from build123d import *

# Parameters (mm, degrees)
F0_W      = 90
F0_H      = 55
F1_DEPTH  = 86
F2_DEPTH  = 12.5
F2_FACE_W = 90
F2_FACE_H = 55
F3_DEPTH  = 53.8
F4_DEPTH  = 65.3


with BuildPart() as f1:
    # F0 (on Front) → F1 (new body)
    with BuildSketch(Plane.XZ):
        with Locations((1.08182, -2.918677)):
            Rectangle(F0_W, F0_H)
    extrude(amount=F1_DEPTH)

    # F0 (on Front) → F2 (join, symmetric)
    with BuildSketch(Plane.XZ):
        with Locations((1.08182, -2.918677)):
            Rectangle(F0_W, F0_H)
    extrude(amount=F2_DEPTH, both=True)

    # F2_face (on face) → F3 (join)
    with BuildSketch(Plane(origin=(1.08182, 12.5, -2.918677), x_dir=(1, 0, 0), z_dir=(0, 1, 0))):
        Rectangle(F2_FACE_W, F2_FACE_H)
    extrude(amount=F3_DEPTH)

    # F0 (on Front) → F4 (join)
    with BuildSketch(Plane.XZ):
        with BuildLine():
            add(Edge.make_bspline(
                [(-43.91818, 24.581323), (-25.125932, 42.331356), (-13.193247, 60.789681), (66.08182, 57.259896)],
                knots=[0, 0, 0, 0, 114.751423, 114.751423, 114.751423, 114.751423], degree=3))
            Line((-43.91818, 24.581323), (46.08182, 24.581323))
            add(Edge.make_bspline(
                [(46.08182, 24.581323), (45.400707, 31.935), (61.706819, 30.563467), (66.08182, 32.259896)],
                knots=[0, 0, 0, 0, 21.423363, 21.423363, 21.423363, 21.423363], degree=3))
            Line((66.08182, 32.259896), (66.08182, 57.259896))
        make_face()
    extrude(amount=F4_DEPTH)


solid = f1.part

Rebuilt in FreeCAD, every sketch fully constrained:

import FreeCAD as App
import Part
import Sketcher
Q = App.Units.Quantity


def add_polygon(sketch, points):
    """Adds a closed chain of lines whose ends are joined by coincident constraints."""
    first, n = sketch.GeometryCount, len(points)
    for a, b in zip(points, points[1:] + points[:1]):
        sketch.addGeometry(Part.LineSegment(App.Vector(*a, 0), App.Vector(*b, 0)), False)
    for i in range(n):
        sketch.addConstraint(Sketcher.Constraint("Coincident", first + i, 2, first + (i + 1) % n, 1))

doc = App.newDocument("Part")
body = doc.addObject("PartDesign::Body", "Body")

sketch1 = doc.addObject("Sketcher::SketchObject", "Sketch")
body.addObject(sketch1)
sketch1.AttachmentSupport = (doc.XZ_Plane, [""])
sketch1.MapMode = "FlatFace"
add_polygon(sketch1, [(-44, 25), (-44, -30), (46, -30), (46, 25)])
sketch1.addConstraint([
    Sketcher.Constraint("Vertical", 0),
    Sketcher.Constraint("Horizontal", 1),
    Sketcher.Constraint("Vertical", 2),
    Sketcher.Constraint("Horizontal", 3),
    Sketcher.Constraint("DistanceX", 1, 1, 1, 2, Q("90 mm")),
    Sketcher.Constraint("DistanceY", 0, 2, 0, 1, Q("55 mm")),
    Sketcher.Constraint("DistanceX", 0, 2, -1, 1, Q("43.91818 mm")),
    Sketcher.Constraint("DistanceY", 0, 2, -1, 1, Q("30.418677 mm")),
])
pad1 = doc.addObject("PartDesign::Pad", "Pad")
body.addObject(pad1)
pad1.Profile = sketch1
pad1.Length = 86

sketch2 = doc.addObject("Sketcher::SketchObject", "Sketch001")
body.addObject(sketch2)
sketch2.AttachmentSupport = (doc.XZ_Plane, [""])
sketch2.MapMode = "FlatFace"
add_polygon(sketch2, [(-44, 25), (-44, -30), (46, -30), (46, 25)])
sketch2.addConstraint([
    Sketcher.Constraint("Vertical", 0),
    Sketcher.Constraint("Horizontal", 1),
    Sketcher.Constraint("Vertical", 2),
    Sketcher.Constraint("Horizontal", 3),
    Sketcher.Constraint("DistanceX", 1, 1, 1, 2, Q("90 mm")),
    Sketcher.Constraint("DistanceY", 0, 2, 0, 1, Q("55 mm")),
    Sketcher.Constraint("DistanceX", 0, 2, -1, 1, Q("43.91818 mm")),
    Sketcher.Constraint("DistanceY", 0, 2, -1, 1, Q("30.418677 mm")),
])
pad2 = doc.addObject("PartDesign::Pad", "Pad001")
body.addObject(pad2)
pad2.Profile = sketch2
pad2.Length = 25
pad2.Midplane = True

sketch3 = doc.addObject("Sketcher::SketchObject", "Sketch002")
body.addObject(sketch3)
sketch3.AttachmentSupport = (doc.XZ_Plane, [""])
sketch3.MapMode = "FlatFace"
sketch3.AttachmentOffset = App.Placement(App.Vector(0, 0, -12.5), App.Rotation())
add_polygon(sketch3, [(-44, -30), (-44, 25), (46, 25), (46, -30)])
sketch3.addConstraint([
    Sketcher.Constraint("Vertical", 0),
    Sketcher.Constraint("Horizontal", 1),
    Sketcher.Constraint("Vertical", 2),
    Sketcher.Constraint("Horizontal", 3),
    Sketcher.Constraint("DistanceX", 1, 1, 1, 2, Q("90 mm")),
    Sketcher.Constraint("DistanceY", 0, 1, 0, 2, Q("55 mm")),
    Sketcher.Constraint("DistanceX", 0, 2, -1, 1, Q("43.91818 mm")),
    Sketcher.Constraint("DistanceY", -1, 1, 0, 2, Q("24.581323 mm")),
])
pad3 = doc.addObject("PartDesign::Pad", "Pad002")
body.addObject(pad3)
pad3.Profile = sketch3
pad3.Length = 53.8
pad3.Reversed = True

sketch4 = doc.addObject("Sketcher::SketchObject", "Sketch003")
body.addObject(sketch4)
sketch4.AttachmentSupport = (doc.XZ_Plane, [""])
sketch4.MapMode = "FlatFace"
sketch4.addGeometry([
    Part.BSplineCurve([App.Vector(-43.91818, 24.581323, 0), App.Vector(-25.125932, 42.331356, 0), App.Vector(-13.193247, 60.789681, 0), App.Vector(66.08182, 57.259896, 0)], [4, 4], [0, 114.751423], False, 3, [1, 1, 1, 1], False),
    Part.LineSegment(App.Vector(-43.91818, 24.581323, 0), App.Vector(46.08182, 24.581323, 0)),
    Part.BSplineCurve([App.Vector(46.08182, 24.581323, 0), App.Vector(45.400707, 31.935, 0), App.Vector(61.706819, 30.563467, 0), App.Vector(66.08182, 32.259896, 0)], [4, 4], [0, 21.423363], False, 3, [1, 1, 1, 1], False),
    Part.LineSegment(App.Vector(66.08182, 32.259896, 0), App.Vector(66.08182, 57.259896, 0)),
], False)
sketch4.addConstraint([
    Sketcher.Constraint("Block", 0),
    Sketcher.Constraint("Block", 2),
    Sketcher.Constraint("Coincident", 0, 1, 1, 1),
    Sketcher.Constraint("Coincident", 1, 2, 2, 1),
    Sketcher.Constraint("Coincident", 2, 2, 3, 1),
    Sketcher.Constraint("Coincident", 3, 2, 0, 2),
])
pad4 = doc.addObject("PartDesign::Pad", "Pad003")
body.addObject(pad4)
pad4.Profile = sketch4
pad4.Length = 65.3

doc.recompute()
